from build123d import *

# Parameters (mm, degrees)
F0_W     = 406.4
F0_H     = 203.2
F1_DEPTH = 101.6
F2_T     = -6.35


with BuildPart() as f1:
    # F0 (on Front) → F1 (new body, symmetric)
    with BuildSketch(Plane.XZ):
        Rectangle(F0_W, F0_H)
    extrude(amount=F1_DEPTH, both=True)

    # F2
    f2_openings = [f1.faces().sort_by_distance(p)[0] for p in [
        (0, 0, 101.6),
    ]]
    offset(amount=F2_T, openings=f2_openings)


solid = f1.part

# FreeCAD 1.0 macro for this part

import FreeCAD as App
import Part
import Sketcher
Q = App.Units.Quantity


def faces_at(feature, points):
    """Names of the faces that lie closest to the given points."""
    faces = feature.Shape.Faces
    near = lambda p: min(range(len(faces)), key=lambda i: faces[i].distToShape(Part.Vertex(*p))[0])
    return sorted({f"Face{near(p) + 1}" for p in points})


def add_polygon(sketch, points):
    """Adds a closed chain of lines whose ends are joined by coincident constraints."""
    first, n = sketch.GeometryCount, len(points)
    for a, b in zip(points, points[1:] + points[:1]):
        sketch.addGeometry(Part.LineSegment(App.Vector(*a, 0), App.Vector(*b, 0)), False)
    for i in range(n):
        sketch.addConstraint(Sketcher.Constraint("Coincident", first + i, 2, first + (i + 1) % n, 1))

doc = App.newDocument("Part")
body = doc.addObject("PartDesign::Body", "Body")

# Sketch on XZ plane
sketch1 = doc.addObject("Sketcher::SketchObject", "Sketch")
body.addObject(sketch1)
sketch1.AttachmentSupport = (doc.XZ_Plane, [""])
sketch1.MapMode = "FlatFace"
add_polygon(sketch1, [(-203.2, 101.6), (-203.2, -101.6), (203.2, -101.6), (203.2, 101.6)])  # lines 0-3
sketch1.addConstraint([
    Sketcher.Constraint("Vertical", 0),
    Sketcher.Constraint("Horizontal", 1),
    Sketcher.Constraint("Vertical", 2),
    Sketcher.Constraint("Horizontal", 3),
    Sketcher.Constraint("Symmetric", 0, 2, 2, 2, -1, 1),
    Sketcher.Constraint("DistanceX", 1, 1, 1, 2, Q("16 in")),
    Sketcher.Constraint("DistanceY", 0, 2, 0, 1, Q("8 in")),
])
pad1 = doc.addObject("PartDesign::Pad", "Pad")
body.addObject(pad1)
pad1.Profile = sketch1
pad1.Length = Q("8 in")
pad1.Midplane = True
doc.recompute()

thickness = doc.addObject("PartDesign::Thickness", "Thickness")
body.addObject(thickness)
thickness.Base = (pad1, faces_at(pad1, [(0, 0, 101.6)]))
thickness.Value = Q("0.25 in")
thickness.Reversed = True
thickness.Join = "Arc"

doc.recompute()
